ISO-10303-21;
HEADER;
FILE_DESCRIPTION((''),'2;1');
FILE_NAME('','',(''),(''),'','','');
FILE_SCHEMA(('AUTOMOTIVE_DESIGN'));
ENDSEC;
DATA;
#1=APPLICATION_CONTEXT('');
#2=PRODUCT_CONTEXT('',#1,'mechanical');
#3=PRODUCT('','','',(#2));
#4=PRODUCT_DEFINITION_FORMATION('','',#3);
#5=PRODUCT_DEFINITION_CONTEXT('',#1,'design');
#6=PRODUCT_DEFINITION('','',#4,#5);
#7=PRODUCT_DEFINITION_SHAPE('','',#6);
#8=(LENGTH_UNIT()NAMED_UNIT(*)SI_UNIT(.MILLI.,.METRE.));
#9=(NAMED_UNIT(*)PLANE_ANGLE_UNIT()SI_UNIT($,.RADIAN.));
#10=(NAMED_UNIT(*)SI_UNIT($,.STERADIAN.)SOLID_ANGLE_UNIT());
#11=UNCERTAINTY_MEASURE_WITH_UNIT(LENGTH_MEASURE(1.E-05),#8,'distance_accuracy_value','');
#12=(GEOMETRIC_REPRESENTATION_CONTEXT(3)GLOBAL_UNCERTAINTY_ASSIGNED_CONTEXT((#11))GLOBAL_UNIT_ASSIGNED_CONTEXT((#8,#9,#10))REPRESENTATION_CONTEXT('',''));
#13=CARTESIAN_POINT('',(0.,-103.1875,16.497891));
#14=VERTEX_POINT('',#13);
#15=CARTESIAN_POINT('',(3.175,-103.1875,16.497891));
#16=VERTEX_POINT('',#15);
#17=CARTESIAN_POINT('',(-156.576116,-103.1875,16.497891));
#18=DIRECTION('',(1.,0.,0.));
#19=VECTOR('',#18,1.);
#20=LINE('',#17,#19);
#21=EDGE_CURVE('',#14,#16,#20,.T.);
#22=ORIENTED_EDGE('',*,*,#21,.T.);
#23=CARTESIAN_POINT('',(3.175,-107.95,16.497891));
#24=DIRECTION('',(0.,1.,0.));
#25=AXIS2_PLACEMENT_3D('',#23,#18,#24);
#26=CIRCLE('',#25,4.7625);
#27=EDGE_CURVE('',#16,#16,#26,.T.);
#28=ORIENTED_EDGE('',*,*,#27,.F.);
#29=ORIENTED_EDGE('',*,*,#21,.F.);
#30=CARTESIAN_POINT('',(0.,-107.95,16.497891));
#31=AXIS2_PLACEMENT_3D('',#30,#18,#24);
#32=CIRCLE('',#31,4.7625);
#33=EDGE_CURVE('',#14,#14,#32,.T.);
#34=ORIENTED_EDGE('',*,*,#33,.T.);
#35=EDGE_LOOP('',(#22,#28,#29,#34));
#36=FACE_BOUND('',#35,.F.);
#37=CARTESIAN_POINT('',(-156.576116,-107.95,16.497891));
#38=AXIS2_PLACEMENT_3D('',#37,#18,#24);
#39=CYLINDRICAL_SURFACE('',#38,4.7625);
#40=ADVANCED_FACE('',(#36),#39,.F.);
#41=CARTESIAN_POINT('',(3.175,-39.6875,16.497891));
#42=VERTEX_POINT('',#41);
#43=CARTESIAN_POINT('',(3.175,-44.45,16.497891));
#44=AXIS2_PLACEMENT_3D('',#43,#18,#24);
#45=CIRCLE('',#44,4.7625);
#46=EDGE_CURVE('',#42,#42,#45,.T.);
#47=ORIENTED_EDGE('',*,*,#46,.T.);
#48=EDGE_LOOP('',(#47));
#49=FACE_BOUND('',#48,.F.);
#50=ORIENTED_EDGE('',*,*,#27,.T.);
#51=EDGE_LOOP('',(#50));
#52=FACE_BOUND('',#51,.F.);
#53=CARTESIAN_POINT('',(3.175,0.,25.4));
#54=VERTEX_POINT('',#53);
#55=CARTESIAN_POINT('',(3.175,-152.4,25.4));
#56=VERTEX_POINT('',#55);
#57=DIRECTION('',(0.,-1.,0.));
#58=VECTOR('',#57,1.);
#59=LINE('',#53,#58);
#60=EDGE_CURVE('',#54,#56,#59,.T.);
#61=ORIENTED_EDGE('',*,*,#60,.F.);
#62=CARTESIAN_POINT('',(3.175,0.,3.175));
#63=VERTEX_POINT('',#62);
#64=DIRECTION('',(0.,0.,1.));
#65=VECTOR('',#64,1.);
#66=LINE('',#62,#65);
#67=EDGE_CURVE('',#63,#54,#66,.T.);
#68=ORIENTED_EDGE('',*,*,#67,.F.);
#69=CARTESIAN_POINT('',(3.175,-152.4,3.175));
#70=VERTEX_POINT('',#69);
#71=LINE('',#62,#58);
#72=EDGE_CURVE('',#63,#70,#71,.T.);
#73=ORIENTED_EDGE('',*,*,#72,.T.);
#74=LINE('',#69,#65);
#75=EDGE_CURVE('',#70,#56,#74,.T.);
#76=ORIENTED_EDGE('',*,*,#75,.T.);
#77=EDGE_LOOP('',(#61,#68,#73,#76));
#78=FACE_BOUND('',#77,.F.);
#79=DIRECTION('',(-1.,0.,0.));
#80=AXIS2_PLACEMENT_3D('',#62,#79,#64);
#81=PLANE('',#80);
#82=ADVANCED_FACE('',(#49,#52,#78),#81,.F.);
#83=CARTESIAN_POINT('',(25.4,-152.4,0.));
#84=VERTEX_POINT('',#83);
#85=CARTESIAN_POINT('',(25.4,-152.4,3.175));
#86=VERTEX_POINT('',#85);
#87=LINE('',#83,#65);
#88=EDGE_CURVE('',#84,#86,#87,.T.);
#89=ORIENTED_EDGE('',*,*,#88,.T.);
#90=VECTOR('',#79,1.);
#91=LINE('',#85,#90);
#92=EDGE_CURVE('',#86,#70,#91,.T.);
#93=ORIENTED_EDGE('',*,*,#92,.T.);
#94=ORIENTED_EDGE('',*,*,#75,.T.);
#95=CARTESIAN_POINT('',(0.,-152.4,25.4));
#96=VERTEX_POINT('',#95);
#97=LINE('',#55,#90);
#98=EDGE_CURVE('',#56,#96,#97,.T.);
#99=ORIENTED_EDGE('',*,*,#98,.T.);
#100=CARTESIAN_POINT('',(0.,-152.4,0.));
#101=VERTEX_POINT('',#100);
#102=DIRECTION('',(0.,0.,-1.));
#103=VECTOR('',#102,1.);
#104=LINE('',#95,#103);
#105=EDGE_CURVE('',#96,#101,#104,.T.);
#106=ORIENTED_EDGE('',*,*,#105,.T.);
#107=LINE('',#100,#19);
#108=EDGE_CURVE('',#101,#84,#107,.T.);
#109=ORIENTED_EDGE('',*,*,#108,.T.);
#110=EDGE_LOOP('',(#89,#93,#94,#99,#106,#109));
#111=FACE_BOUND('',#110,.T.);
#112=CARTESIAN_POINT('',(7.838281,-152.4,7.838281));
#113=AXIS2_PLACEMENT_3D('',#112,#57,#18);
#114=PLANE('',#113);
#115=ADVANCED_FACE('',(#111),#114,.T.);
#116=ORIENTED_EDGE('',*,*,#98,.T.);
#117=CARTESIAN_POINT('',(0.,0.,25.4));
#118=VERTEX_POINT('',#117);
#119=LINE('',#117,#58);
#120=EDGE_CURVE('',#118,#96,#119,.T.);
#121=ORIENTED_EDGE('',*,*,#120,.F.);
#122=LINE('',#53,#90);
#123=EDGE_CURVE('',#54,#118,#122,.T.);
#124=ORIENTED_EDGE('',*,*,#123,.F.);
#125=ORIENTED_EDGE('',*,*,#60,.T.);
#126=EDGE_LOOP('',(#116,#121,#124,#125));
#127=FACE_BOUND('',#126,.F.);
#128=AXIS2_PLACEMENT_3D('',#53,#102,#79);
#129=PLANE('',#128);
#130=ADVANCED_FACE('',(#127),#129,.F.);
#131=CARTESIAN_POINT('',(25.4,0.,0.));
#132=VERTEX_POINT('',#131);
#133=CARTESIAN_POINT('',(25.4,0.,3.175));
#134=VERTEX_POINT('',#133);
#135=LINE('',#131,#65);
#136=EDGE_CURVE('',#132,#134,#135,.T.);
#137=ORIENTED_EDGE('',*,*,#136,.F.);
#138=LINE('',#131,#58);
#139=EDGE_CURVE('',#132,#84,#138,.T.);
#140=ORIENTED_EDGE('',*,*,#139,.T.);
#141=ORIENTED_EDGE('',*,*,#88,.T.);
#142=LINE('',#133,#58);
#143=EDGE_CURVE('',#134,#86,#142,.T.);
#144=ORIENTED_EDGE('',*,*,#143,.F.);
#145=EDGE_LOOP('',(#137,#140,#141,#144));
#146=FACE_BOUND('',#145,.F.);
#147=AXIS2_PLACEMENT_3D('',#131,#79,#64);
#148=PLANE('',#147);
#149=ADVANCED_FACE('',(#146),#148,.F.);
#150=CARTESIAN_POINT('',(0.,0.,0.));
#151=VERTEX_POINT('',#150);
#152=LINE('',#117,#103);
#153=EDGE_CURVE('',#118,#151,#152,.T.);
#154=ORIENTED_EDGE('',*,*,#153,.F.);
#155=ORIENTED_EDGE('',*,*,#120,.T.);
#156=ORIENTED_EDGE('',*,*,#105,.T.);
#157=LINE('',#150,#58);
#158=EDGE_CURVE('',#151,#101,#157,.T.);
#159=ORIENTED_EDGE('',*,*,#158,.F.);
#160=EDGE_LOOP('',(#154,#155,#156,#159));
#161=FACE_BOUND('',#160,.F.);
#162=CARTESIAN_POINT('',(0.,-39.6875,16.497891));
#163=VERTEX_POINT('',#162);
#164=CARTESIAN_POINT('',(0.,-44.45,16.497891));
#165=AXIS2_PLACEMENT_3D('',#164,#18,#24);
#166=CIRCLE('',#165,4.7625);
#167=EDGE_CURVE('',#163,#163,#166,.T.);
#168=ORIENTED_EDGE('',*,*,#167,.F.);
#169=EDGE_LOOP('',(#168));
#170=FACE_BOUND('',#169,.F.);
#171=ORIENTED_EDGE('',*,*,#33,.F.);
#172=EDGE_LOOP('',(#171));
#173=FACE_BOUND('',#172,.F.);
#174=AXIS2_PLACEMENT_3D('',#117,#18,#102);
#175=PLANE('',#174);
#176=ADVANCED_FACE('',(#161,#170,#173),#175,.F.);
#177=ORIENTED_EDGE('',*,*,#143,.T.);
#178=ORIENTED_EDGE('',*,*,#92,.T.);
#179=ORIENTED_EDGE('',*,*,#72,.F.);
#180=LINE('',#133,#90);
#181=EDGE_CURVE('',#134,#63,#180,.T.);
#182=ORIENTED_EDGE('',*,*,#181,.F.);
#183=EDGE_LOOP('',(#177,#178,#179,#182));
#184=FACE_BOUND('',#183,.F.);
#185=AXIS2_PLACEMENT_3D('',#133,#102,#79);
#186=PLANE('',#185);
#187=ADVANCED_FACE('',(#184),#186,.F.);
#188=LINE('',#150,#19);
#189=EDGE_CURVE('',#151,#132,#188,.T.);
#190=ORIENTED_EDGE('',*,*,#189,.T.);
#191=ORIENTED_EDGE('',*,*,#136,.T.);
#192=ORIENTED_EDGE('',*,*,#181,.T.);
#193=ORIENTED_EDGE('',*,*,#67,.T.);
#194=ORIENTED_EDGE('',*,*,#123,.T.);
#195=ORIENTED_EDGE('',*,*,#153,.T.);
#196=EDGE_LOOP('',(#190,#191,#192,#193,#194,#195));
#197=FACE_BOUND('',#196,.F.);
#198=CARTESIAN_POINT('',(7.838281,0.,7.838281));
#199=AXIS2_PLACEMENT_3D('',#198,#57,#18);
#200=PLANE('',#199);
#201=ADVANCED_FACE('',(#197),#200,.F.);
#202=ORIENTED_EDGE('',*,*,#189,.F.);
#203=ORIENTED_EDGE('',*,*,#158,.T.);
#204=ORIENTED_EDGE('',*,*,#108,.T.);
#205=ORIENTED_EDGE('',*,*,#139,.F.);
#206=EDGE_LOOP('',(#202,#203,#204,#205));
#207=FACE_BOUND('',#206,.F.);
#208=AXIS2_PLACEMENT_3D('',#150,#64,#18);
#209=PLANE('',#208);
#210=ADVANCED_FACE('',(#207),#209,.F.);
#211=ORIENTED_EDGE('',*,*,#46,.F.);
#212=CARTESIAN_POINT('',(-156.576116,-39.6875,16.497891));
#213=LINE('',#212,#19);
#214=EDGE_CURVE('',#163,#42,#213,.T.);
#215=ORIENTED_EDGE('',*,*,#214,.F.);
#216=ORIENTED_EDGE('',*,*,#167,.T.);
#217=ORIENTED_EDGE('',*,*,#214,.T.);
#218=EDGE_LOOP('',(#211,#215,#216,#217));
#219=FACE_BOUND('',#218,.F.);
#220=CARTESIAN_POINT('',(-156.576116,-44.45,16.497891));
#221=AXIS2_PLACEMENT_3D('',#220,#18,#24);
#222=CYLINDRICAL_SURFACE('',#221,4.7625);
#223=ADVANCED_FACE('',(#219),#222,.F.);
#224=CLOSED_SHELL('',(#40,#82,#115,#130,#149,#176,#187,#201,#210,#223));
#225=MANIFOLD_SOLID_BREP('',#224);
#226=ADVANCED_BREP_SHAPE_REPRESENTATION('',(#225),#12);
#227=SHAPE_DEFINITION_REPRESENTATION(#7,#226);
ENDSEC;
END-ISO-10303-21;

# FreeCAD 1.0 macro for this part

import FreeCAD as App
import Part
import Sketcher
Q = App.Units.Quantity


def add_polygon(sketch, points):
    """Adds a closed chain of lines whose ends are joined by coincident constraints."""
    first, n = sketch.GeometryCount, len(points)
    for a, b in zip(points, points[1:] + points[:1]):
        sketch.addGeometry(Part.LineSegment(App.Vector(*a, 0), App.Vector(*b, 0)), False)
    for i in range(n):
        sketch.addConstraint(Sketcher.Constraint("Coincident", first + i, 2, first + (i + 1) % n, 1))

doc = App.newDocument("Part")
body = doc.addObject("PartDesign::Body", "Body")

sketch1 = doc.addObject("Sketcher::SketchObject", "Sketch")
body.addObject(sketch1)
sketch1.AttachmentSupport = (doc.XZ_Plane, [""])
sketch1.MapMode = "FlatFace"
add_polygon(sketch1, [(3.2, 25.4), (0, 25.4), (0, 0), (25.4, 0), (25.4, 3.2), (3.2, 3.2)])
sketch1.addConstraint([
    Sketcher.Constraint("Horizontal", 0),
    Sketcher.Constraint("Vertical", 1),
    Sketcher.Constraint("Horizontal", 2),
    Sketcher.Constraint("Vertical", 3),
    Sketcher.Constraint("Horizontal", 4),
    Sketcher.Constraint("Vertical", 5),
    Sketcher.Constraint("Coincident", 1, 2, -1, 1),
    Sketcher.Constraint("Equal", 2, 1),
    Sketcher.Constraint("Equal", 0, 3),
    Sketcher.Constraint("DistanceX", 2, 1, 2, 2, Q("1 in")),
    Sketcher.Constraint("DistanceX", 0, 2, 0, 1, Q("0.125 in")),
])
pad1 = doc.addObject("PartDesign::Pad", "Pad")
body.addObject(pad1)
pad1.Profile = sketch1
pad1.Length = Q("6 in")

sketch2 = doc.addObject("Sketcher::SketchObject", "Sketch001")
body.addObject(sketch2)
sketch2.AttachmentSupport = (doc.YZ_Plane, [""])
sketch2.MapMode = "FlatFace"
sketch2.addGeometry([
    Part.Circle(App.Vector(-44.5, 16.5, 0), App.Vector(0, 0, 1), 4.8),
    Part.Circle(App.Vector(-108, 16.5, 0), App.Vector(0, 0, 1), 4.8),
], False)
sketch2.addConstraint([
    Sketcher.Constraint("Equal", 0, 1),
    Sketcher.Constraint("Horizontal", 0, 3, 1, 3),
    Sketcher.Constraint("Diameter", 0, Q("0.375 in")),
    Sketcher.Constraint("DistanceX", 1, 3, 0, 3, Q("2.5 in")),
    Sketcher.Constraint("DistanceX", 0, 3, -1, 1, Q("1.75 in")),
    Sketcher.Constraint("DistanceY", -1, 1, 0, 3, 16.497891),
])
doc.recompute()
hole = doc.addObject("PartDesign::Hole", "Hole")
body.addObject(hole)
hole.Profile = sketch2
hole.ThreadType = "None"
hole.Diameter = Q("0.375 in")
hole.DepthType = "ThroughAll"
hole.Reversed = True

doc.recompute()
